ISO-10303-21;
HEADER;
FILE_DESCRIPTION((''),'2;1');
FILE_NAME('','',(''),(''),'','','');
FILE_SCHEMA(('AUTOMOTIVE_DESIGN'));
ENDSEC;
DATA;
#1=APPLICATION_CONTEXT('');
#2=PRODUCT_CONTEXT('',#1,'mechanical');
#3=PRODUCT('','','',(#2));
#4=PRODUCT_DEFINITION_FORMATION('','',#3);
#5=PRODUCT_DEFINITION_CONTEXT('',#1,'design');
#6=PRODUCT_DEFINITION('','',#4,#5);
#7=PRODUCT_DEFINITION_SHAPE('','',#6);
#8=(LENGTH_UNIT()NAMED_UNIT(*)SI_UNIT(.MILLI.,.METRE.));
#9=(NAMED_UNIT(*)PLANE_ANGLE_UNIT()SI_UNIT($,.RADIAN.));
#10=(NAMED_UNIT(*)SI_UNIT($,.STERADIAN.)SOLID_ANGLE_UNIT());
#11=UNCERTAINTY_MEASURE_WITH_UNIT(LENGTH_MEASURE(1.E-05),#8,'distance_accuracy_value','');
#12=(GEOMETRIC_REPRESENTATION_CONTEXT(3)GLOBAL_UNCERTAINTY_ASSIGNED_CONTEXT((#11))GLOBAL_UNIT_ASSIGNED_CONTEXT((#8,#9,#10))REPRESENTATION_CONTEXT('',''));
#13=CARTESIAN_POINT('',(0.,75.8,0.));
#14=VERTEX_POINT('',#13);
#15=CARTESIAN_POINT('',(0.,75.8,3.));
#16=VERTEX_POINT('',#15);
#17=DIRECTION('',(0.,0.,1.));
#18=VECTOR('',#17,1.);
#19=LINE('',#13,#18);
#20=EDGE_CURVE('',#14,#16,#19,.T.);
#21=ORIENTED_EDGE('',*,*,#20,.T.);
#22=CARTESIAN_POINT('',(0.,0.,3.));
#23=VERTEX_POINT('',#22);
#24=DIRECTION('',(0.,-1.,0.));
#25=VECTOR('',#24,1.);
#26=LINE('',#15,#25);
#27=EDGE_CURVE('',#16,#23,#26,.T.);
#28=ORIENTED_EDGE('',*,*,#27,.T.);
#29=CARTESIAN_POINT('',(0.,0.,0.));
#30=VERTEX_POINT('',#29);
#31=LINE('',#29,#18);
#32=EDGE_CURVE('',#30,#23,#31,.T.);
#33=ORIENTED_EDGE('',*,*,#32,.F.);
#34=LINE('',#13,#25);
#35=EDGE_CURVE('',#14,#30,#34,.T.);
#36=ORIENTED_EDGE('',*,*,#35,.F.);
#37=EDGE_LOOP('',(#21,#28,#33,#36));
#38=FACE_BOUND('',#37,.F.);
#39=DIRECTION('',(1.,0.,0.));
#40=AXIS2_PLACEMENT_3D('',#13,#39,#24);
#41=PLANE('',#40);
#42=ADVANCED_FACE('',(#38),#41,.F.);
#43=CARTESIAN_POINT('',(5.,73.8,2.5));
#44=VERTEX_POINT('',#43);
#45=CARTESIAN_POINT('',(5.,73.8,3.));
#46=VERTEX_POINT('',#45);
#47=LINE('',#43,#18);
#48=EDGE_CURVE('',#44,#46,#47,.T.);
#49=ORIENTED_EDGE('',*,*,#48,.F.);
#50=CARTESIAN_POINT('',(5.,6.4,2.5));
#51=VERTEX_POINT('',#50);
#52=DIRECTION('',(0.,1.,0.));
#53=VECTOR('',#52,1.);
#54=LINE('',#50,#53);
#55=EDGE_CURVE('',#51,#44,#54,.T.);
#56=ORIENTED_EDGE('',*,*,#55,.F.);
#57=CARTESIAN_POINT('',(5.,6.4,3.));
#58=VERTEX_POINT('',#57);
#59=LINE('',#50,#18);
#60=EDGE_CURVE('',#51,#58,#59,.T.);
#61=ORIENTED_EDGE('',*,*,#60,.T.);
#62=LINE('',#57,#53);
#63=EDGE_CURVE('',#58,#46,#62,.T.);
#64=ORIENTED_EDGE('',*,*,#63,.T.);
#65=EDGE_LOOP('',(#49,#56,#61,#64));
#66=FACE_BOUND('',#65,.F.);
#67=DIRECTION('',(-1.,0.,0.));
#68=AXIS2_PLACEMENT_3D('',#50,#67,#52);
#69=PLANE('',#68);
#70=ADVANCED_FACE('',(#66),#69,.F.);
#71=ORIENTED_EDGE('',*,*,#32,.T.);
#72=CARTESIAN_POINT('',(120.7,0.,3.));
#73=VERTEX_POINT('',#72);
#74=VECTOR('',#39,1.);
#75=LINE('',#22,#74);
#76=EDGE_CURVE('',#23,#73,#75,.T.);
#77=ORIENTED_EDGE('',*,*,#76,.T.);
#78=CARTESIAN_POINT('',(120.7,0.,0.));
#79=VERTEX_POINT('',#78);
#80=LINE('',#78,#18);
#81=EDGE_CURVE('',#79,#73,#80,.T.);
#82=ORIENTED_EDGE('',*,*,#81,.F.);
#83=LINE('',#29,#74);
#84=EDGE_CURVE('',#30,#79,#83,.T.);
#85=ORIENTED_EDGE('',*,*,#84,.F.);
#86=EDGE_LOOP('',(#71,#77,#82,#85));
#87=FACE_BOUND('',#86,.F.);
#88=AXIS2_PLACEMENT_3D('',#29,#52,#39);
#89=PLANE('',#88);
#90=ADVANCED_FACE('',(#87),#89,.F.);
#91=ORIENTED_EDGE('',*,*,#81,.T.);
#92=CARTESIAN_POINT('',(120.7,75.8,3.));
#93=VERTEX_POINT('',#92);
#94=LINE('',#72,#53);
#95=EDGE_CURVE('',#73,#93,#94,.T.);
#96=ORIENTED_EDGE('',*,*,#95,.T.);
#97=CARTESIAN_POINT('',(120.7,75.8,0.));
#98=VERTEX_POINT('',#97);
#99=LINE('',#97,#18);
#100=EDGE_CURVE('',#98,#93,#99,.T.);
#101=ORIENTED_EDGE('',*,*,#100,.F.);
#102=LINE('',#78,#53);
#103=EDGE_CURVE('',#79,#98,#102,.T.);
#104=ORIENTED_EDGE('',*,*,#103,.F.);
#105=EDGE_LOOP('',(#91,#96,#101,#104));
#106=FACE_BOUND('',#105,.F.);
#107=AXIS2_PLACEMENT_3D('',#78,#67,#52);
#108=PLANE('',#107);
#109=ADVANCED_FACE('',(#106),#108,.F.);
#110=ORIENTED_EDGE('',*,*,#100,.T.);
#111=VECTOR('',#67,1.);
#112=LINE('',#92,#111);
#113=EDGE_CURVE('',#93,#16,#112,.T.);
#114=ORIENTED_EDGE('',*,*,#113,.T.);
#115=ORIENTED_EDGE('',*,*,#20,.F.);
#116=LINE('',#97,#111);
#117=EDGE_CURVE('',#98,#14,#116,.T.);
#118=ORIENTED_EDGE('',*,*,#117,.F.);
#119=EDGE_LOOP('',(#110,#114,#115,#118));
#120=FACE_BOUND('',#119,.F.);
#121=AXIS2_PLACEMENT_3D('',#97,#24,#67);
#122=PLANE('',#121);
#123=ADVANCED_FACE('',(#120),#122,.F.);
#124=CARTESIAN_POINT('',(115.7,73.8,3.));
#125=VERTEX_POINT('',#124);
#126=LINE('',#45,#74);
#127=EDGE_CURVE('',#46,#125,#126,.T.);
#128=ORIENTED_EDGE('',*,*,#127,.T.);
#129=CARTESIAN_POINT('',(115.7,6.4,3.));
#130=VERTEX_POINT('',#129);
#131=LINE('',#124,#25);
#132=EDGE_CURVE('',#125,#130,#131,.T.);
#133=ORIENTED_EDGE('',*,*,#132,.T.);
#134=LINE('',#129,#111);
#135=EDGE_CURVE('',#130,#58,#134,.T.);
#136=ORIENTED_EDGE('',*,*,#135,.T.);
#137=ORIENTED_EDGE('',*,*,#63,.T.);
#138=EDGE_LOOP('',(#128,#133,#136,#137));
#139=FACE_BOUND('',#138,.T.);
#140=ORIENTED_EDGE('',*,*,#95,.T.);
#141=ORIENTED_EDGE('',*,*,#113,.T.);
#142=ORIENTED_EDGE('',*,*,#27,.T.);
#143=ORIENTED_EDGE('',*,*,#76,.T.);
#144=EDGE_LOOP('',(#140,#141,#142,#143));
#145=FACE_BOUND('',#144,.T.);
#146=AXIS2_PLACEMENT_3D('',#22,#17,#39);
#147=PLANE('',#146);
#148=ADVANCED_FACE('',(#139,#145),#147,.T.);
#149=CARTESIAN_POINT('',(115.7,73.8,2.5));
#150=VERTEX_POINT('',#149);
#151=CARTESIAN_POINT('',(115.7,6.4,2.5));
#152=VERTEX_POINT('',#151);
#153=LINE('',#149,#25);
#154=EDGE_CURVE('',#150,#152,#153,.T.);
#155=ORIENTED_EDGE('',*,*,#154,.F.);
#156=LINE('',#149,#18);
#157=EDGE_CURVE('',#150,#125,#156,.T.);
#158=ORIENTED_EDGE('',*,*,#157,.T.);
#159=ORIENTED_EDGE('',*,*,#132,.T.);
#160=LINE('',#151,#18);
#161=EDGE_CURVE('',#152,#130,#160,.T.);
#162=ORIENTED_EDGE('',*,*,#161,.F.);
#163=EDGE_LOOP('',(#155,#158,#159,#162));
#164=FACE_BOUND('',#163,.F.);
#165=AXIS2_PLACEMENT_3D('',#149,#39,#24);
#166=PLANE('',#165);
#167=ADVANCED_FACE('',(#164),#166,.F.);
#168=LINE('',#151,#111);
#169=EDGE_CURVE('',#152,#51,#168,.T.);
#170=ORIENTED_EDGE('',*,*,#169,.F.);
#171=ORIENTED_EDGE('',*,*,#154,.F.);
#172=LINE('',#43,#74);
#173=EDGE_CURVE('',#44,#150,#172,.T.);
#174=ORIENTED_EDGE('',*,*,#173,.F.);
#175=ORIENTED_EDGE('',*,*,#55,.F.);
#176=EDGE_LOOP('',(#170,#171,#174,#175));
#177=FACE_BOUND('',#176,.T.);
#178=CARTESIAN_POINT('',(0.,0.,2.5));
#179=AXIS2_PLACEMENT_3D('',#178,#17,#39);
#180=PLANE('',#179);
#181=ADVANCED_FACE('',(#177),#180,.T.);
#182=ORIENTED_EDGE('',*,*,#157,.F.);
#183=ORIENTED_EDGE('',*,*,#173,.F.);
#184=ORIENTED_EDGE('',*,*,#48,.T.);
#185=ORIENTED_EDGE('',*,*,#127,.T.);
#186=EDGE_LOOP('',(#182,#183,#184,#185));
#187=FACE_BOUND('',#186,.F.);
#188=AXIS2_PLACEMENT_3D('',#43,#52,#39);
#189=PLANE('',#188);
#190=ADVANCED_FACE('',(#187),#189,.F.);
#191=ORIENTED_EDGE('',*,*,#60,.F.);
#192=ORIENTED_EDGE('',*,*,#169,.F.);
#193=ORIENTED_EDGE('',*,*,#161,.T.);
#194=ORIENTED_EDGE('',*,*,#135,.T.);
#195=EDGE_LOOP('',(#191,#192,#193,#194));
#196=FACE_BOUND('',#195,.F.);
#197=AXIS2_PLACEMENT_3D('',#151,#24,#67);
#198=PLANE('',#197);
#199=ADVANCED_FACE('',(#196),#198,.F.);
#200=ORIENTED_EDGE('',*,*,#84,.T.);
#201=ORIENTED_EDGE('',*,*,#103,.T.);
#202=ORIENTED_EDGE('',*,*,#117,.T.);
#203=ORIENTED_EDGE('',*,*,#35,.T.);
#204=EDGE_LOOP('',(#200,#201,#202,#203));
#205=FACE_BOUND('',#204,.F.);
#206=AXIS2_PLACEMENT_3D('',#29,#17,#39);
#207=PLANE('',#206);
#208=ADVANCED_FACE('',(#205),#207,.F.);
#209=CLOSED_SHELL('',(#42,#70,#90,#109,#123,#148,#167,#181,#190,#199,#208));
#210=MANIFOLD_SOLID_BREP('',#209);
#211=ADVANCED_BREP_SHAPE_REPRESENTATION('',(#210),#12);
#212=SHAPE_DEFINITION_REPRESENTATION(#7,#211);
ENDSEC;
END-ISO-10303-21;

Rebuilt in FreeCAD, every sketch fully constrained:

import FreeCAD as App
import Part
import Sketcher
Q = App.Units.Quantity

doc = App.newDocument("Part")
params = doc.addObject("Spreadsheet::Sheet", "Params")
for row, (alias, value) in enumerate([
    ("sketch1_width", "120.7 mm"),
    ("sketch1_height", "75.8 mm"),
    ("pad1_length", "3 mm"),
    ("sketch2_width", "110.7 mm"),
    ("sketch2_height", "67.4 mm"),
    ("pocket1_length", "0.5 mm"),
], start=1):
    params.set(f"A{row}", alias)
    params.set(f"B{row}", "=" + value)
    params.setAlias(f"B{row}", alias)

body = doc.addObject("PartDesign::Body", "Body")

# Sketch on XY plane
sketch1 = doc.addObject("Sketcher::SketchObject", "Sketch")
body.addObject(sketch1)
sketch1.AttachmentSupport = (doc.XY_Plane, [""])
sketch1.MapMode = "FlatFace"
sketch1.addGeometry([
    Part.LineSegment(App.Vector(0, 75.8, 0), App.Vector(0, 0, 0)),
    Part.LineSegment(App.Vector(0, 0, 0), App.Vector(120.7, 0, 0)),
    Part.LineSegment(App.Vector(120.7, 0, 0), App.Vector(120.7, 75.8, 0)),
    Part.LineSegment(App.Vector(120.7, 75.8, 0), App.Vector(0, 75.8, 0)),
], False)
sketch1.addConstraint([
    Sketcher.Constraint("Coincident", 0, 2, 1, 1),
    Sketcher.Constraint("Coincident", 1, 2, 2, 1),
    Sketcher.Constraint("Coincident", 2, 2, 3, 1),
    Sketcher.Constraint("Coincident", 3, 2, 0, 1),
    Sketcher.Constraint("Vertical", 0),
    Sketcher.Constraint("Horizontal", 1),
    Sketcher.Constraint("Vertical", 2),
    Sketcher.Constraint("Horizontal", 3),
    Sketcher.Constraint("Coincident", 0, 2, -1, 1),
    Sketcher.Constraint("DistanceX", 1, 1, 1, 2, Q("120.7 mm")),
    Sketcher.Constraint("DistanceY", 0, 2, 0, 1, Q("75.8 mm")),
])
sketch1.setExpression("Constraints[9]", "Params.sketch1_width")
sketch1.setExpression("Constraints[10]", "Params.sketch1_height")
pad1 = doc.addObject("PartDesign::Pad", "Pad")
body.addObject(pad1)
pad1.Profile = sketch1
pad1.setExpression("Length", "Params.pad1_length")

# Sketch on XY plane
sketch2 = doc.addObject("Sketcher::SketchObject", "Sketch001")
body.addObject(sketch2)
sketch2.AttachmentSupport = (doc.XY_Plane, [""])
sketch2.MapMode = "FlatFace"
sketch2.AttachmentOffset = App.Placement(App.Vector(0, 0, 2.5), App.Rotation())
sketch2.addGeometry([
    Part.LineSegment(App.Vector(115.7, 73.8, 0), App.Vector(5, 73.8, 0)),
    Part.LineSegment(App.Vector(5, 73.8, 0), App.Vector(5, 6.4, 0)),
    Part.LineSegment(App.Vector(5, 6.4, 0), App.Vector(115.7, 6.4, 0)),
    Part.LineSegment(App.Vector(115.7, 6.4, 0), App.Vector(115.7, 73.8, 0)),
], False)
sketch2.addConstraint([
    Sketcher.Constraint("Coincident", 0, 2, 1, 1),
    Sketcher.Constraint("Coincident", 1, 2, 2, 1),
    Sketcher.Constraint("Coincident", 2, 2, 3, 1),
    Sketcher.Constraint("Coincident", 3, 2, 0, 1),
    Sketcher.Constraint("Horizontal", 0),
    Sketcher.Constraint("Vertical", 1),
    Sketcher.Constraint("Horizontal", 2),
    Sketcher.Constraint("Vertical", 3),
    Sketcher.Constraint("DistanceX", -1, 1, 0, 2, Q("5 mm")),
    Sketcher.Constraint("DistanceY", -1, 1, 1, 2, Q("6.4 mm")),
    Sketcher.Constraint("DistanceX", 0, 2, 0, 1, Q("110.7 mm")),
    Sketcher.Constraint("DistanceY", 1, 2, 1, 1, Q("67.4 mm")),
])
sketch2.setExpression("Constraints[10]", "Params.sketch2_width")
sketch2.setExpression("Constraints[11]", "Params.sketch2_height")
pocket1 = doc.addObject("PartDesign::Pocket", "Pocket")
body.addObject(pocket1)
pocket1.Profile = sketch2
pocket1.setExpression("Length", "Params.pocket1_length")
pocket1.Reversed = True

doc.recompute()
